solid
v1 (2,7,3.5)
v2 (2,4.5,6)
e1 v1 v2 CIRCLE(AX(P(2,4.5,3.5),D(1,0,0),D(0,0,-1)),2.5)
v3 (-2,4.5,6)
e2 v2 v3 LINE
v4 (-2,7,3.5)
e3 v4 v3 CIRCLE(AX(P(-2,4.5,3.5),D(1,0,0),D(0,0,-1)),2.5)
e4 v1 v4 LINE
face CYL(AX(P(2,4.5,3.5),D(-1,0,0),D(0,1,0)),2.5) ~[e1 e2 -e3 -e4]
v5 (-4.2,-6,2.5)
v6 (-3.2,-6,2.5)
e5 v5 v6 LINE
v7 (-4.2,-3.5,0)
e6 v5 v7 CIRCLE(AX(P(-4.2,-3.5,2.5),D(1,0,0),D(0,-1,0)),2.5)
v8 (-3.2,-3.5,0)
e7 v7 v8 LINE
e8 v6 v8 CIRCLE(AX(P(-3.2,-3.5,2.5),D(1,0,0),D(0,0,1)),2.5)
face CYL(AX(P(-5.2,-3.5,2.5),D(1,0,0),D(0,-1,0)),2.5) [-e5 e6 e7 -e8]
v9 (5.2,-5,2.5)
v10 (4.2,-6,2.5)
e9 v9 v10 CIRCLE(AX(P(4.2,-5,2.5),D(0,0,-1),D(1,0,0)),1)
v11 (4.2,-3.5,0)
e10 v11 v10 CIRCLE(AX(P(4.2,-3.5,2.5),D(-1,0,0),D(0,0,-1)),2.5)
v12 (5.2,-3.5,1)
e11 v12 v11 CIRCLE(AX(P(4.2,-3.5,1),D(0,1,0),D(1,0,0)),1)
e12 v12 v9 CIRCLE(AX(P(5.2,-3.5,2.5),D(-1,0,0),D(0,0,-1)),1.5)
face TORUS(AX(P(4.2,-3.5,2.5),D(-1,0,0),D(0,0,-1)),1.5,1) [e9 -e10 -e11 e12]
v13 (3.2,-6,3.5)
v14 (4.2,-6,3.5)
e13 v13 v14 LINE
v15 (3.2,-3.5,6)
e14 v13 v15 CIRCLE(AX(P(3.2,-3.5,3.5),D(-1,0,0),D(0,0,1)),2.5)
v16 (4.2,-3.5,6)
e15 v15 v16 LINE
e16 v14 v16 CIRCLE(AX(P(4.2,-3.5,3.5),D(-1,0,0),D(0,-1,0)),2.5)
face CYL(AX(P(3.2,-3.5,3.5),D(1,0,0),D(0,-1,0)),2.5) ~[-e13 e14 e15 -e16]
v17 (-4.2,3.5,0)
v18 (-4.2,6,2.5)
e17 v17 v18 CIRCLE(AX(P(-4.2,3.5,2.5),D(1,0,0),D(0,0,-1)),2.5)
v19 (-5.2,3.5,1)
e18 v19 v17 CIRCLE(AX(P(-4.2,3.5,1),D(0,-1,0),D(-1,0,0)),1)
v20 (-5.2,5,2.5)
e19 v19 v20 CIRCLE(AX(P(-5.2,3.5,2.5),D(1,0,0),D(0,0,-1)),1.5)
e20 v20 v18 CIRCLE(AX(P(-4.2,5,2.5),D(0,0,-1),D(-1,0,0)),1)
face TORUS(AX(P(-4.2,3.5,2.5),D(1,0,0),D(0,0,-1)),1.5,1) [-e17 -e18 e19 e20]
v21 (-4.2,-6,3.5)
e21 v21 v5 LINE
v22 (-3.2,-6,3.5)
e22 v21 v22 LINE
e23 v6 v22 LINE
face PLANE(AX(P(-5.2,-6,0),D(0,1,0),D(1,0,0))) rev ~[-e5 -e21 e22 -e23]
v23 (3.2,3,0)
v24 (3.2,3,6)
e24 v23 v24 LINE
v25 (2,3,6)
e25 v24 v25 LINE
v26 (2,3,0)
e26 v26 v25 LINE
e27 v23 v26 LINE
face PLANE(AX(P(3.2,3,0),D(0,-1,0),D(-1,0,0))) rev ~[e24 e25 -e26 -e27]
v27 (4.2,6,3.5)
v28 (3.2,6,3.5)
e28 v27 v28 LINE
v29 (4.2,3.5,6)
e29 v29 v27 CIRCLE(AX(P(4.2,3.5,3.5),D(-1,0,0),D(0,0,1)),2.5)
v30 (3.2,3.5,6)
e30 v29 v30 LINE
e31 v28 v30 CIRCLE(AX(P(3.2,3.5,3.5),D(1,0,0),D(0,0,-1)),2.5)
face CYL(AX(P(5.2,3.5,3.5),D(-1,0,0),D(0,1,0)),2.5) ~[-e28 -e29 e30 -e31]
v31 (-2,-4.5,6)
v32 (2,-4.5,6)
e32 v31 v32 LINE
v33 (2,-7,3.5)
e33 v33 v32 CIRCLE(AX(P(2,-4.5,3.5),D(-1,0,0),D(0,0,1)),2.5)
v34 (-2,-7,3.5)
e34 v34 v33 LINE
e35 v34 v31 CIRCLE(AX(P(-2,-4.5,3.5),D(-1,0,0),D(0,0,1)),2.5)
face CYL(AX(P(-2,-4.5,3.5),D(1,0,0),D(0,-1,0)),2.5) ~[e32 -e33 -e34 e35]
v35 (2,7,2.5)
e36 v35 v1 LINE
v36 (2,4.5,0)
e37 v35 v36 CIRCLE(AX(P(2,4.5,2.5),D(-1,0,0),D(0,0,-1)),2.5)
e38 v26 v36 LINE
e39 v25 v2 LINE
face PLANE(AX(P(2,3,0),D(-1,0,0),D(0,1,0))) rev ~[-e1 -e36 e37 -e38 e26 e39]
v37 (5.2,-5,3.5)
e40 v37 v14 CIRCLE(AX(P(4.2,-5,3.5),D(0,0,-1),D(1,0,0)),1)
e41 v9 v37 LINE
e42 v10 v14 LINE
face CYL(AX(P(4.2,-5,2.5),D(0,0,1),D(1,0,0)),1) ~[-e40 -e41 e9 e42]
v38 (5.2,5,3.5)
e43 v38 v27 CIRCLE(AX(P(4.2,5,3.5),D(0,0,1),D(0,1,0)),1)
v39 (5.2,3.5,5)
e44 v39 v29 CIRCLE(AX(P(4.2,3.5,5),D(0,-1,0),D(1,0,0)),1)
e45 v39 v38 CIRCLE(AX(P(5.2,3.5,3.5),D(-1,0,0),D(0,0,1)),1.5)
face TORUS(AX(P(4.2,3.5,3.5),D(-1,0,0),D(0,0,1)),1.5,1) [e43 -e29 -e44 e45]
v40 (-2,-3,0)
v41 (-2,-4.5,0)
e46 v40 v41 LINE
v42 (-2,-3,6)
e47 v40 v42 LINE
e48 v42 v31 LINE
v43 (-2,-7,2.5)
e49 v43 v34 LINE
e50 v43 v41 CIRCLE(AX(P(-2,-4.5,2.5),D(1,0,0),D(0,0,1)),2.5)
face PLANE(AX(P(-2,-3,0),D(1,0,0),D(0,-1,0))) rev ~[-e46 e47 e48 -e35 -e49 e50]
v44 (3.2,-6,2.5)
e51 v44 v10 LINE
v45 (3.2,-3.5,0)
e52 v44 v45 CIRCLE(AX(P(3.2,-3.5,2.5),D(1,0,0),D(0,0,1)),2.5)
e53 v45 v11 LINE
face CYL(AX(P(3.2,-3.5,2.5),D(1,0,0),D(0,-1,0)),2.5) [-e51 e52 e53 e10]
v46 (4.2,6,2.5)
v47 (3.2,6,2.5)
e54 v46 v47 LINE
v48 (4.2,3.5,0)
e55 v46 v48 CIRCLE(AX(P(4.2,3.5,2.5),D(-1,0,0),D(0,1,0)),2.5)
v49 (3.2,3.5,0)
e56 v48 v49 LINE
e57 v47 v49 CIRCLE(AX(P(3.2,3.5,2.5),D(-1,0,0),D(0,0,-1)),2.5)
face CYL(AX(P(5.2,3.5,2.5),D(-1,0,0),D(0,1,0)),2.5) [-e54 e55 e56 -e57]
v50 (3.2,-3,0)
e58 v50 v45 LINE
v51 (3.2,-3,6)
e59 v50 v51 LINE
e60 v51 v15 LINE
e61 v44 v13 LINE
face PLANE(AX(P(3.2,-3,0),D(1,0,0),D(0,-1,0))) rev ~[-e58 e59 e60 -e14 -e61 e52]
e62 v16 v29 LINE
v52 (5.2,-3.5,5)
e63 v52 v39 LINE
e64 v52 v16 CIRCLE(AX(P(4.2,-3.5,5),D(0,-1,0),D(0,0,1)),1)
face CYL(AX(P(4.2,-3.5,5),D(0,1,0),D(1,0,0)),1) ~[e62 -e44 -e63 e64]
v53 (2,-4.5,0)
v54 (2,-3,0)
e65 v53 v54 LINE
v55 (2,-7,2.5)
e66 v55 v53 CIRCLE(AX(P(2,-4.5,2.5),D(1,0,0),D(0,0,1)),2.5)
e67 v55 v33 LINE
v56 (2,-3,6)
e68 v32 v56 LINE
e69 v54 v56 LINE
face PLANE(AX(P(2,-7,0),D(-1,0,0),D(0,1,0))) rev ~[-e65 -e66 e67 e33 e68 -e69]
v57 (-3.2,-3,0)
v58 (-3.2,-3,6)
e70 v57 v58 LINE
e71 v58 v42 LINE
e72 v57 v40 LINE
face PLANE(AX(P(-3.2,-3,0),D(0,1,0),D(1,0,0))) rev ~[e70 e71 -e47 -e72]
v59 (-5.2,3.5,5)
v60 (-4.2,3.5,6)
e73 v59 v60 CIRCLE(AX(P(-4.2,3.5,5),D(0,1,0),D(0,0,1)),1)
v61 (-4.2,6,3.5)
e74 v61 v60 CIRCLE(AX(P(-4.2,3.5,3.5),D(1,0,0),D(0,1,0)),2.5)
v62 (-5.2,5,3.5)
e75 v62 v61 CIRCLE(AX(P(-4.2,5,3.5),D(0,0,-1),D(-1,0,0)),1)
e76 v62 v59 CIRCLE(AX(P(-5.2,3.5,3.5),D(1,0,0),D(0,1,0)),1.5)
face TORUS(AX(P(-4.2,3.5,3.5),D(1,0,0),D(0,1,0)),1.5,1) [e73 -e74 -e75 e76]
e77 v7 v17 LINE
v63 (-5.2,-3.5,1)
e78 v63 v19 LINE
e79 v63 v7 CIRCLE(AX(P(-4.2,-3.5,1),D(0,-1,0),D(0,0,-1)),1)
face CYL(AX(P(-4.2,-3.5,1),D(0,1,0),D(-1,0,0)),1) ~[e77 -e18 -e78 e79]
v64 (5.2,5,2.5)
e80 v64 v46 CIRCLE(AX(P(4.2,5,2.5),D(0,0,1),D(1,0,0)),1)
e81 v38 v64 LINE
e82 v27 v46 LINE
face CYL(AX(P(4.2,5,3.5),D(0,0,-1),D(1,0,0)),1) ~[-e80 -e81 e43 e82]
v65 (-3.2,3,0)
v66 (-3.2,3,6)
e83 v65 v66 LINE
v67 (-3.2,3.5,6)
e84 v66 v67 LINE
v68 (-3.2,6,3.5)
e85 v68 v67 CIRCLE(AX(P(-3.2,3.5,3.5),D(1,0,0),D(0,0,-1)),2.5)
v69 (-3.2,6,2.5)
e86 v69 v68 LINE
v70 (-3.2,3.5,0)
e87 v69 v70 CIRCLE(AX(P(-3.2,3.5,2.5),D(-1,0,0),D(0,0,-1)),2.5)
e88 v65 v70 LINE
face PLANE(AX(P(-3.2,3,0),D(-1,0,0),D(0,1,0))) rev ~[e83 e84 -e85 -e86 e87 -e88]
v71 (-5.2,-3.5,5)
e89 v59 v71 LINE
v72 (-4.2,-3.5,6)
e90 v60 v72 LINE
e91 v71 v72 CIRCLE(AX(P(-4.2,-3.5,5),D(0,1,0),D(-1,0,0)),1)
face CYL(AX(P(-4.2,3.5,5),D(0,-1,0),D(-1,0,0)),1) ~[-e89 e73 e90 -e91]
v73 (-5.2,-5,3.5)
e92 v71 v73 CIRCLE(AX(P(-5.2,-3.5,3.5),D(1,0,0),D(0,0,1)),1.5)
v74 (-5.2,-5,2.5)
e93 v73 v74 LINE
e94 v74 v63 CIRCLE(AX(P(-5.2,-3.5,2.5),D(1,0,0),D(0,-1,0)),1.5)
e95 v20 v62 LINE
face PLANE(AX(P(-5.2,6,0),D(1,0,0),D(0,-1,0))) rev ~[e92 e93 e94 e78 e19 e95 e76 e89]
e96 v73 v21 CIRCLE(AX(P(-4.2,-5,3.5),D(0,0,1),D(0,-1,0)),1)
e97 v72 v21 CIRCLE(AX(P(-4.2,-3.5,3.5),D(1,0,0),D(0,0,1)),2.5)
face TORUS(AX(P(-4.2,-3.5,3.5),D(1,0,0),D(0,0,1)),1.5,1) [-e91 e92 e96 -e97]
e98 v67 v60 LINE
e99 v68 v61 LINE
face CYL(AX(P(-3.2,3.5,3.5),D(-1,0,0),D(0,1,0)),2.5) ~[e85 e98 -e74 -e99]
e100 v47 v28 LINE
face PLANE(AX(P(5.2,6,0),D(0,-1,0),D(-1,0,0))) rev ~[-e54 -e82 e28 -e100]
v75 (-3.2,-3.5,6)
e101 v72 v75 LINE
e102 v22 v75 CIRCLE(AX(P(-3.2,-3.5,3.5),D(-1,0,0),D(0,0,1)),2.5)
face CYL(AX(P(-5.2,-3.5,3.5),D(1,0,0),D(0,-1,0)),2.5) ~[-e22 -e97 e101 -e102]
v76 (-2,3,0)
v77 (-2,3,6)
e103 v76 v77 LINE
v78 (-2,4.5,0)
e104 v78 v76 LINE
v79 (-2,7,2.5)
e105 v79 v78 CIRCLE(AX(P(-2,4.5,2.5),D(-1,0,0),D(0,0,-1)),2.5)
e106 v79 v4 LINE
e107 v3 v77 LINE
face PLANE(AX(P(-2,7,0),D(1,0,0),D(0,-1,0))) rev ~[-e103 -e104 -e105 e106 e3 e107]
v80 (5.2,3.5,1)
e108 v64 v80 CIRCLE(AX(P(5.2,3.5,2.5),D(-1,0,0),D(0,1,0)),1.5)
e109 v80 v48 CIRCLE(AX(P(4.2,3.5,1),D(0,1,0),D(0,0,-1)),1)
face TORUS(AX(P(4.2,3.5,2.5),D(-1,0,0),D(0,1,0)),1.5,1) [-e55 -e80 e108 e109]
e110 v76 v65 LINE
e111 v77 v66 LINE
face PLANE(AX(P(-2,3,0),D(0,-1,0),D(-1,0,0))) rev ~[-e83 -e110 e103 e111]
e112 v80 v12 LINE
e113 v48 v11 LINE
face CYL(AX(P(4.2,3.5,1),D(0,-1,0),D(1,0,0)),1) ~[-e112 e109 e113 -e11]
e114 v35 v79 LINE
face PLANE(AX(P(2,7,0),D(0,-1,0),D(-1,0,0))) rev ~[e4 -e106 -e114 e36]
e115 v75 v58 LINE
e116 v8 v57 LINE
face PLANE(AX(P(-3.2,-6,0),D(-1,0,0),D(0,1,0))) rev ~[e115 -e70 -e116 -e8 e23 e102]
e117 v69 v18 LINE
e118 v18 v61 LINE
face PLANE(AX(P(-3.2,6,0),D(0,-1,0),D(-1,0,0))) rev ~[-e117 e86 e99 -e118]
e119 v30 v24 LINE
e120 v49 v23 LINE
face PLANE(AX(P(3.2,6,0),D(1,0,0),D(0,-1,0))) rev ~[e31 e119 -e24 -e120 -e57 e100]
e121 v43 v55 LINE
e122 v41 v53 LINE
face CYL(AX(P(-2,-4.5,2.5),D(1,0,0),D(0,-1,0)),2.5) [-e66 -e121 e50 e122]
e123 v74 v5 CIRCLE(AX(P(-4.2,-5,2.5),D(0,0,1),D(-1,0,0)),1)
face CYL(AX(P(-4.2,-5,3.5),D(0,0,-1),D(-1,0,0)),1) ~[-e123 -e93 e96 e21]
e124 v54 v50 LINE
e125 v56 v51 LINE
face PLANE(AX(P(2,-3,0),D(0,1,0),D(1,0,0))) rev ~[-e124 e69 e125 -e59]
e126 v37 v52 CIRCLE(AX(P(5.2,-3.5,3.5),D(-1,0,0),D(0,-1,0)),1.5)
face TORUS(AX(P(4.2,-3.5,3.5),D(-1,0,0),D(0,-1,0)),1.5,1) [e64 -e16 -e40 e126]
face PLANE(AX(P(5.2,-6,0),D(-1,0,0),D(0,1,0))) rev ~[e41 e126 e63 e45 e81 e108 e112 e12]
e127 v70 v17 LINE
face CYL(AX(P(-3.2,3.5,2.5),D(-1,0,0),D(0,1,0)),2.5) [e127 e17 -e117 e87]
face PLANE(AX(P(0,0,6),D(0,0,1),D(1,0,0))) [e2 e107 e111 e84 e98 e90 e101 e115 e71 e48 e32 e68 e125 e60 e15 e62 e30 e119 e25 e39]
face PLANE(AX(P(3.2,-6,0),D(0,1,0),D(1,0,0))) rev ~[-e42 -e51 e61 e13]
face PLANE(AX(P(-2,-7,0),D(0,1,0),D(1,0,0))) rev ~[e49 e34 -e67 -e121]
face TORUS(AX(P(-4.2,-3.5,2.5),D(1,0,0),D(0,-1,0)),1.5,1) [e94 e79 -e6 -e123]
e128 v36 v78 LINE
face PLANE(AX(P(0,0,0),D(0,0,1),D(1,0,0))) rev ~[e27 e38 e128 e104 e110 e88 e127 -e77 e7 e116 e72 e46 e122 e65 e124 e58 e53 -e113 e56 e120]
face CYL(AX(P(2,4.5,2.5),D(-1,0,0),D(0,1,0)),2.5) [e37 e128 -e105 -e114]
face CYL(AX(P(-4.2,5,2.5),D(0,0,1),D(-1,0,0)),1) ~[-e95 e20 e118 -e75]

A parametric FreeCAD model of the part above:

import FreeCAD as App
import Part
import Sketcher


def edges_at(feature, points):
    """Names of the edges that pass closest to the given points."""
    edges = feature.Shape.Edges
    near = lambda p: min(range(len(edges)), key=lambda i: edges[i].distToShape(Part.Vertex(*p))[0])
    return sorted({f"Edge{near(p) + 1}" for p in points})


def add_polygon(sketch, points):
    """Adds a closed chain of lines whose ends are joined by coincident constraints."""
    first, n = sketch.GeometryCount, len(points)
    for a, b in zip(points, points[1:] + points[:1]):
        sketch.addGeometry(Part.LineSegment(App.Vector(*a, 0), App.Vector(*b, 0)), False)
    for i in range(n):
        sketch.addConstraint(Sketcher.Constraint("Coincident", first + i, 2, first + (i + 1) % n, 1))

doc = App.newDocument("Part")
body = doc.addObject("PartDesign::Body", "Body")

# Sketch on XY plane
sketch1 = body.newObject("Sketcher::SketchObject", "Sketch")
sketch1.AttachmentSupport = (doc.getObject("XY_Plane"), [""])
sketch1.MapMode = "FlatFace"
add_polygon(sketch1, [(-2, 7), (-2, 3), (-3.2, 3), (-3.2, 6), (-5.2, 6), (-5.2, -6), (-3.2, -6), (-3.2, -3), (-2, -3), (-2, -7), (2, -7), (2, -3), (3.2, -3), (3.2, -6), (5.2, -6), (5.2, 6), (3.2, 6), (3.2, 3), (2, 3), (2, 7)])  # lines 0-19
sketch1.addConstraint([
    Sketcher.Constraint("Vertical", 0),
    Sketcher.Constraint("Horizontal", 1),
    Sketcher.Constraint("Vertical", 2),
    Sketcher.Constraint("Horizontal", 3),
    Sketcher.Constraint("Vertical", 4),
    Sketcher.Constraint("Horizontal", 5),
    Sketcher.Constraint("Vertical", 6),
    Sketcher.Constraint("Horizontal", 7),
    Sketcher.Constraint("Vertical", 8),
    Sketcher.Constraint("Horizontal", 9),
    Sketcher.Constraint("Vertical", 10),
    Sketcher.Constraint("Horizontal", 11),
    Sketcher.Constraint("Vertical", 12),
    Sketcher.Constraint("Horizontal", 13),
    Sketcher.Constraint("Vertical", 14),
    Sketcher.Constraint("Horizontal", 15),
    Sketcher.Constraint("Vertical", 16),
    Sketcher.Constraint("Horizontal", 17),
    Sketcher.Constraint("Vertical", 18),
    Sketcher.Constraint("Horizontal", 19),
    Sketcher.Constraint("Symmetric", 0, 2, 10, 2, -1, 1),
    Sketcher.Constraint("Symmetric", 2, 2, 12, 2, -1, 1),
    Sketcher.Constraint("Symmetric", 4, 2, 14, 2, -1, 1),
    Sketcher.Constraint("Symmetric", 6, 2, 16, 2, -1, 1),
    Sketcher.Constraint("Symmetric", 8, 2, 18, 2, -1, 1),
    Sketcher.Constraint("Symmetric", 7, 2, 10, 2, -2),
    Sketcher.Constraint("Symmetric", 5, 2, 12, 2, -2),
    Sketcher.Constraint("Equal", 19, 0),
    Sketcher.Constraint("DistanceX", 3, 2, 3, 1, 2.0),
    Sketcher.Constraint("DistanceX", 9, 1, 9, 2, 4.0),
    Sketcher.Constraint("DistanceY", 2, 1, 2, 2, 3.0),
    Sketcher.Constraint("DistanceY", 4, 2, 4, 1, 12.0),
    Sketcher.Constraint("DistanceX", 1, 2, 1, 1, 1.2),
])
pad1 = body.newObject("PartDesign::Pad", "Pad")
pad1.Profile = sketch1
pad1.Length = 6
doc.recompute()

fillet = body.newObject("PartDesign::Fillet", "Fillet")
fillet.Base = (pad1, edges_at(pad1, [
    (-4.2, 6, 6),
    (-4.2, 6, 0),
    (-4.2, -6, 0),
    (-4.2, -6, 6),
    (4.2, -6, 0),
    (4.2, -6, 6),
    (4.2, 6, 6),
    (4.2, 6, 0),
    (0, 7, 0),
    (0, -7, 0),
    (0, -7, 6),
    (0, 7, 6),
]))
fillet.Radius = 2.5
doc.recompute()

fillet2 = body.newObject("PartDesign::Fillet", "Fillet001")
fillet2.Base = (fillet, edges_at(fillet, [
    (-5.2, 6, 3),
    (-5.2, 5.268, 0.732),
    (-5.2, 5.268, 5.268),
    (-5.2, 0, 0),
    (-5.2, 0, 6),
    (-5.2, -5.268, 0.732),
    (-5.2, -5.268, 5.268),
    (-5.2, -6, 3),
    (5.2, -6, 3),
    (5.2, -5.268, 0.732),
    (5.2, -5.268, 5.268),
    (5.2, 0, 0),
    (5.2, 0, 6),
    (5.2, 5.268, 0.732),
    (5.2, 5.268, 5.268),
    (5.2, 6, 3),
]))
fillet2.Radius = 1

doc.recompute()
